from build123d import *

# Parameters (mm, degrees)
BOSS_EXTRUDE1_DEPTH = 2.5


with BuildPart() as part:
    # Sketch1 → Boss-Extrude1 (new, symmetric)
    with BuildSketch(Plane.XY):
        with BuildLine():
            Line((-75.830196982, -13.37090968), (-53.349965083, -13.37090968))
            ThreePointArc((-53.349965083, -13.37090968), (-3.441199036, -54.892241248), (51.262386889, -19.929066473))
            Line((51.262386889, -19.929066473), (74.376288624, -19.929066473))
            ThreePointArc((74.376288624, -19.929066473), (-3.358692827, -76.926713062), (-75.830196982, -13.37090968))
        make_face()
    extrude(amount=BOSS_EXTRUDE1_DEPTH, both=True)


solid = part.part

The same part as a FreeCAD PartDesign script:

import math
import FreeCAD as App
import Part
import Sketcher

V = App.Vector

doc = App.newDocument("Part")
body = doc.addObject("PartDesign::Body", "Body")

# Sketch on XY plane
sketch1 = body.newObject("Sketcher::SketchObject", "Sketch")
sketch1.AttachmentSupport = (doc.getObject("XY_Plane"), [""])
sketch1.MapMode = "FlatFace"
sketch1.addGeometry([
    Part.LineSegment(V(-53, -13, 0), V(-76, -13, 0)),
    Part.ArcOfCircle(Part.Circle(V(0, 0, 0), V(0, 0, 1), 77), math.radians(-170), math.radians(-15)),
    Part.LineSegment(V(74, -20, 0), V(51, -20, 0)),
    Part.ArcOfCircle(Part.Circle(V(0, 0, 0), V(0, 0, 1), 55), math.radians(-166), math.radians(-21)),
], False)
sketch1.addConstraint([
    Sketcher.Constraint("Coincident", 0, 2, 1, 1),
    Sketcher.Constraint("Coincident", 1, 2, 2, 1),
    Sketcher.Constraint("Coincident", 2, 2, 3, 2),
    Sketcher.Constraint("Coincident", 3, 1, 0, 1),
    Sketcher.Constraint("Horizontal", 0),
    Sketcher.Constraint("Horizontal", 2),
    Sketcher.Constraint("Coincident", 1, 3, -1, 1),
    Sketcher.Constraint("Coincident", 3, 3, -1, 1),
    Sketcher.Constraint("Radius", 1, 77.0),
    Sketcher.Constraint("Radius", 3, 55.0),
    Sketcher.Constraint("DistanceX", 2, 2, 2, 1, 23.113902),
    Sketcher.Constraint("DistanceX", 0, 2, 0, 1, 22.480232),
])
pad1 = body.newObject("PartDesign::Pad", "Pad")
pad1.Profile = sketch1
pad1.Length = 5
pad1.Midplane = True

doc.recompute()
